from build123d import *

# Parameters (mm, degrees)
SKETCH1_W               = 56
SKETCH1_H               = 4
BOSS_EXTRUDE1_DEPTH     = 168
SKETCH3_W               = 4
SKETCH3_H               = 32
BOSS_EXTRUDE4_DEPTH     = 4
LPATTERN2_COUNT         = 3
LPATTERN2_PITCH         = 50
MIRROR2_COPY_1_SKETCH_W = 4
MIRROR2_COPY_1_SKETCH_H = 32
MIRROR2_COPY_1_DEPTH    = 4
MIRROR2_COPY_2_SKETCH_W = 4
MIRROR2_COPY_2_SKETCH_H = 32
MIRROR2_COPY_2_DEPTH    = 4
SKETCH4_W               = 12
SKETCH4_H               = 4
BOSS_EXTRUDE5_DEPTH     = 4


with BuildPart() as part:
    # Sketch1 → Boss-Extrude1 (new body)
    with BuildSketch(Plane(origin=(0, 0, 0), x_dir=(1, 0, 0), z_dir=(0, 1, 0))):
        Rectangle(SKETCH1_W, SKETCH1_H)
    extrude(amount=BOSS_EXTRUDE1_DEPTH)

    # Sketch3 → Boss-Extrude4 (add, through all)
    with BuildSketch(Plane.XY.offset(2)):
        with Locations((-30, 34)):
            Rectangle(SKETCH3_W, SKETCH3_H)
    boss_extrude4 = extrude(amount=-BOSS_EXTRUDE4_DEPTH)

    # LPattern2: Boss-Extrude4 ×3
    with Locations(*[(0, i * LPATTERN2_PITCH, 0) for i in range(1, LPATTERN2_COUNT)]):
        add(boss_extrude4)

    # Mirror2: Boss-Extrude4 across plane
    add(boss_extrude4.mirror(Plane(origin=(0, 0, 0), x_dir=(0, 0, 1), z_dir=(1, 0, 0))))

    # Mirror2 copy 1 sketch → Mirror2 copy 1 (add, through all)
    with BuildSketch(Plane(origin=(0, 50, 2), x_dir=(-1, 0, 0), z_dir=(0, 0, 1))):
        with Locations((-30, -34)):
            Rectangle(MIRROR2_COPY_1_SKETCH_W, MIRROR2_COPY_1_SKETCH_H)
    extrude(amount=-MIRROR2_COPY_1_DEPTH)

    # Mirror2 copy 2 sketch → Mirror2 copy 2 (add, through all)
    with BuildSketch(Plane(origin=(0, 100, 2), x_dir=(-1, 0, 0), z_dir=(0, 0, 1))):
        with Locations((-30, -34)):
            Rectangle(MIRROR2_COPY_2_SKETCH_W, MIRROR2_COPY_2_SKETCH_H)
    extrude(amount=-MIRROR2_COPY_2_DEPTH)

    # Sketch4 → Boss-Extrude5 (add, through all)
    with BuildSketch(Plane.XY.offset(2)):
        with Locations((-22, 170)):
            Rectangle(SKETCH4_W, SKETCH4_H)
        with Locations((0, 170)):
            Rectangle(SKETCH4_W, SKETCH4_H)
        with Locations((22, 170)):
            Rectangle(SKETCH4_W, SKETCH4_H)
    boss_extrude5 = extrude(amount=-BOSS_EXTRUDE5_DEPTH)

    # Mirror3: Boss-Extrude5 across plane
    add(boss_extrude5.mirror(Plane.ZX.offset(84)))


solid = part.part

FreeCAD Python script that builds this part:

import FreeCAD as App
import Part
import Sketcher

V = App.Vector


def add_polygon(sketch, points):
    """Adds a closed chain of lines whose ends are joined by coincident constraints."""
    first, n = sketch.GeometryCount, len(points)
    for a, b in zip(points, points[1:] + points[:1]):
        sketch.addGeometry(Part.LineSegment(App.Vector(*a, 0), App.Vector(*b, 0)), False)
    for i in range(n):
        sketch.addConstraint(Sketcher.Constraint("Coincident", first + i, 2, first + (i + 1) % n, 1))

doc = App.newDocument("Part")
body = doc.addObject("PartDesign::Body", "Body")

# Sketch on XZ plane
sketch1 = body.newObject("Sketcher::SketchObject", "Sketch")
sketch1.AttachmentSupport = (doc.getObject("XZ_Plane"), [""])
sketch1.MapMode = "FlatFace"
add_polygon(sketch1, [(-28, -2), (-28, 2), (28, 2), (28, -2)])  # lines 0-3
sketch1.addConstraint(Sketcher.Constraint("Vertical", 0))
sketch1.addConstraint(Sketcher.Constraint("Horizontal", 1))
sketch1.addConstraint(Sketcher.Constraint("Vertical", 2))
sketch1.addConstraint(Sketcher.Constraint("Horizontal", 3))
sketch1.addConstraint(Sketcher.Constraint("Symmetric", 0, 2, 2, 2, -1, 1))
sketch1.addConstraint(Sketcher.Constraint("DistanceX", 1, 1, 1, 2, 56.0))
sketch1.addConstraint(Sketcher.Constraint("DistanceY", 0, 1, 0, 2, 4.0))
pad1 = body.newObject("PartDesign::Pad", "Pad")
pad1.Profile = sketch1
pad1.Length = 168
pad1.Reversed = True

# Sketch on XY plane
sketch2 = body.newObject("Sketcher::SketchObject", "Sketch001")
sketch2.AttachmentSupport = (doc.getObject("XY_Plane"), [""])
sketch2.MapMode = "FlatFace"
sketch2.AttachmentOffset = App.Placement(V(0, 0, 2), App.Rotation())
add_polygon(sketch2, [(-32, 50), (-32, 18), (-28, 18), (-28, 50)])  # lines 0-3
sketch2.addConstraint(Sketcher.Constraint("Vertical", 0))
sketch2.addConstraint(Sketcher.Constraint("Horizontal", 1))
sketch2.addConstraint(Sketcher.Constraint("Vertical", 2))
sketch2.addConstraint(Sketcher.Constraint("Horizontal", 3))
sketch2.addConstraint(Sketcher.Constraint("DistanceX", 1, 1, 1, 2, 4.0))
sketch2.addConstraint(Sketcher.Constraint("DistanceY", 0, 2, 0, 1, 32.0))
sketch2.addConstraint(Sketcher.Constraint("DistanceX", 0, 2, -1, 1, 32.0))
sketch2.addConstraint(Sketcher.Constraint("DistanceY", -1, 1, 0, 2, 18.0))
pad2 = body.newObject("PartDesign::Pad", "Pad001")
pad2.Profile = sketch2
pad2.Length = 4
pad2.Reversed = True
doc.recompute()

linearpattern = body.newObject("PartDesign::LinearPattern", "LinearPattern")
linearpattern.Originals = [pad2]
linearpattern.Direction = (doc.getObject("Y_Axis"), [""])
linearpattern.Mode = "offset"
linearpattern.Offset = 50
linearpattern.Occurrences = 3
body.Tip = linearpattern
doc.recompute()

mirrored = body.newObject("PartDesign::Mirrored", "Mirrored")
mirrored.Originals = [pad2]
mirrored.MirrorPlane = (doc.getObject("YZ_Plane"), [""])
body.Tip = mirrored

# Sketch on XY plane
sketch3 = body.newObject("Sketcher::SketchObject", "Sketch002")
sketch3.AttachmentSupport = (doc.getObject("XY_Plane"), [""])
sketch3.MapMode = "FlatFace"
sketch3.AttachmentOffset = App.Placement(V(0, 0, 2), App.Rotation())
add_polygon(sketch3, [(32, 68), (32, 100), (28, 100), (28, 68)])  # lines 0-3
sketch3.addConstraint(Sketcher.Constraint("Vertical", 0))
sketch3.addConstraint(Sketcher.Constraint("Horizontal", 1))
sketch3.addConstraint(Sketcher.Constraint("Vertical", 2))
sketch3.addConstraint(Sketcher.Constraint("Horizontal", 3))
sketch3.addConstraint(Sketcher.Constraint("DistanceX", 1, 2, 1, 1, 4.0))
sketch3.addConstraint(Sketcher.Constraint("DistanceY", 0, 1, 0, 2, 32.0))
sketch3.addConstraint(Sketcher.Constraint("DistanceX", -1, 1, 0, 2, 32.0))
sketch3.addConstraint(Sketcher.Constraint("DistanceY", -1, 1, 0, 2, 100.0))
pad3 = body.newObject("PartDesign::Pad", "Pad002")
pad3.Profile = sketch3
pad3.Length = 4
pad3.Reversed = True

# Sketch on XY plane
sketch4 = body.newObject("Sketcher::SketchObject", "Sketch003")
sketch4.AttachmentSupport = (doc.getObject("XY_Plane"), [""])
sketch4.MapMode = "FlatFace"
sketch4.AttachmentOffset = App.Placement(V(0, 0, 2), App.Rotation())
add_polygon(sketch4, [(32, 118), (32, 150), (28, 150), (28, 118)])  # lines 0-3
sketch4.addConstraint(Sketcher.Constraint("Vertical", 0))
sketch4.addConstraint(Sketcher.Constraint("Horizontal", 1))
sketch4.addConstraint(Sketcher.Constraint("Vertical", 2))
sketch4.addConstraint(Sketcher.Constraint("Horizontal", 3))
sketch4.addConstraint(Sketcher.Constraint("DistanceX", 1, 2, 1, 1, 4.0))
sketch4.addConstraint(Sketcher.Constraint("DistanceY", 0, 1, 0, 2, 32.0))
sketch4.addConstraint(Sketcher.Constraint("DistanceX", -1, 1, 0, 2, 32.0))
sketch4.addConstraint(Sketcher.Constraint("DistanceY", -1, 1, 0, 2, 150.0))
pad4 = body.newObject("PartDesign::Pad", "Pad003")
pad4.Profile = sketch4
pad4.Length = 4
pad4.Reversed = True

# Sketch on XY plane
sketch5 = body.newObject("Sketcher::SketchObject", "Sketch004")
sketch5.AttachmentSupport = (doc.getObject("XY_Plane"), [""])
sketch5.MapMode = "FlatFace"
sketch5.AttachmentOffset = App.Placement(V(0, 0, 2), App.Rotation())
add_polygon(sketch5, [(-28, 172), (-28, 168), (-16, 168), (-16, 172)])  # lines 0-3
add_polygon(sketch5, [(-6, 172), (-6, 168), (6, 168), (6, 172)])  # lines 4-7
add_polygon(sketch5, [(16, 172), (16, 168), (28, 168), (28, 172)])  # lines 8-11
sketch5.addConstraint(Sketcher.Constraint("Vertical", 0))
sketch5.addConstraint(Sketcher.Constraint("Horizontal", 1))
sketch5.addConstraint(Sketcher.Constraint("Vertical", 2))
sketch5.addConstraint(Sketcher.Constraint("Horizontal", 3))
sketch5.addConstraint(Sketcher.Constraint("Vertical", 4))
sketch5.addConstraint(Sketcher.Constraint("Horizontal", 5))
sketch5.addConstraint(Sketcher.Constraint("Vertical", 6))
sketch5.addConstraint(Sketcher.Constraint("Horizontal", 7))
sketch5.addConstraint(Sketcher.Constraint("Vertical", 8))
sketch5.addConstraint(Sketcher.Constraint("Horizontal", 9))
sketch5.addConstraint(Sketcher.Constraint("Vertical", 10))
sketch5.addConstraint(Sketcher.Constraint("Horizontal", 11))
sketch5.addConstraint(Sketcher.Constraint("Symmetric", 1, 2, 8, 2, -2))
sketch5.addConstraint(Sketcher.Constraint("Symmetric", 3, 2, 10, 2, -2))
sketch5.addConstraint(Sketcher.Constraint("Horizontal", 1, 2, 4, 2))
sketch5.addConstraint(Sketcher.Constraint("Horizontal", 3, 2, 6, 2))
sketch5.addConstraint(Sketcher.Constraint("Equal", 3, 5))
sketch5.addConstraint(Sketcher.Constraint("DistanceX", 1, 1, 1, 2, 12.0))
sketch5.addConstraint(Sketcher.Constraint("DistanceY", 0, 2, 0, 1, 4.0))
sketch5.addConstraint(Sketcher.Constraint("DistanceX", 0, 2, -1, 1, 28.0))
sketch5.addConstraint(Sketcher.Constraint("DistanceY", -1, 1, 0, 2, 168.0))
sketch5.addConstraint(Sketcher.Constraint("DistanceX", 4, 2, -1, 1, 6.0))
pad5 = body.newObject("PartDesign::Pad", "Pad004")
pad5.Profile = sketch5
pad5.Length = 4
pad5.Reversed = True
doc.recompute()

datumplane = body.newObject("PartDesign::Plane", "DatumPlane")
datumplane.AttachmentSupport = (doc.getObject("XZ_Plane"), [""])
datumplane.MapMode = "FlatFace"
datumplane.AttachmentOffset = App.Placement(V(0, 0, -84), App.Rotation())
mirrored2 = body.newObject("PartDesign::Mirrored", "Mirrored001")
mirrored2.Originals = [pad5]
mirrored2.MirrorPlane = (datumplane, [""])
body.Tip = mirrored2

doc.recompute()
